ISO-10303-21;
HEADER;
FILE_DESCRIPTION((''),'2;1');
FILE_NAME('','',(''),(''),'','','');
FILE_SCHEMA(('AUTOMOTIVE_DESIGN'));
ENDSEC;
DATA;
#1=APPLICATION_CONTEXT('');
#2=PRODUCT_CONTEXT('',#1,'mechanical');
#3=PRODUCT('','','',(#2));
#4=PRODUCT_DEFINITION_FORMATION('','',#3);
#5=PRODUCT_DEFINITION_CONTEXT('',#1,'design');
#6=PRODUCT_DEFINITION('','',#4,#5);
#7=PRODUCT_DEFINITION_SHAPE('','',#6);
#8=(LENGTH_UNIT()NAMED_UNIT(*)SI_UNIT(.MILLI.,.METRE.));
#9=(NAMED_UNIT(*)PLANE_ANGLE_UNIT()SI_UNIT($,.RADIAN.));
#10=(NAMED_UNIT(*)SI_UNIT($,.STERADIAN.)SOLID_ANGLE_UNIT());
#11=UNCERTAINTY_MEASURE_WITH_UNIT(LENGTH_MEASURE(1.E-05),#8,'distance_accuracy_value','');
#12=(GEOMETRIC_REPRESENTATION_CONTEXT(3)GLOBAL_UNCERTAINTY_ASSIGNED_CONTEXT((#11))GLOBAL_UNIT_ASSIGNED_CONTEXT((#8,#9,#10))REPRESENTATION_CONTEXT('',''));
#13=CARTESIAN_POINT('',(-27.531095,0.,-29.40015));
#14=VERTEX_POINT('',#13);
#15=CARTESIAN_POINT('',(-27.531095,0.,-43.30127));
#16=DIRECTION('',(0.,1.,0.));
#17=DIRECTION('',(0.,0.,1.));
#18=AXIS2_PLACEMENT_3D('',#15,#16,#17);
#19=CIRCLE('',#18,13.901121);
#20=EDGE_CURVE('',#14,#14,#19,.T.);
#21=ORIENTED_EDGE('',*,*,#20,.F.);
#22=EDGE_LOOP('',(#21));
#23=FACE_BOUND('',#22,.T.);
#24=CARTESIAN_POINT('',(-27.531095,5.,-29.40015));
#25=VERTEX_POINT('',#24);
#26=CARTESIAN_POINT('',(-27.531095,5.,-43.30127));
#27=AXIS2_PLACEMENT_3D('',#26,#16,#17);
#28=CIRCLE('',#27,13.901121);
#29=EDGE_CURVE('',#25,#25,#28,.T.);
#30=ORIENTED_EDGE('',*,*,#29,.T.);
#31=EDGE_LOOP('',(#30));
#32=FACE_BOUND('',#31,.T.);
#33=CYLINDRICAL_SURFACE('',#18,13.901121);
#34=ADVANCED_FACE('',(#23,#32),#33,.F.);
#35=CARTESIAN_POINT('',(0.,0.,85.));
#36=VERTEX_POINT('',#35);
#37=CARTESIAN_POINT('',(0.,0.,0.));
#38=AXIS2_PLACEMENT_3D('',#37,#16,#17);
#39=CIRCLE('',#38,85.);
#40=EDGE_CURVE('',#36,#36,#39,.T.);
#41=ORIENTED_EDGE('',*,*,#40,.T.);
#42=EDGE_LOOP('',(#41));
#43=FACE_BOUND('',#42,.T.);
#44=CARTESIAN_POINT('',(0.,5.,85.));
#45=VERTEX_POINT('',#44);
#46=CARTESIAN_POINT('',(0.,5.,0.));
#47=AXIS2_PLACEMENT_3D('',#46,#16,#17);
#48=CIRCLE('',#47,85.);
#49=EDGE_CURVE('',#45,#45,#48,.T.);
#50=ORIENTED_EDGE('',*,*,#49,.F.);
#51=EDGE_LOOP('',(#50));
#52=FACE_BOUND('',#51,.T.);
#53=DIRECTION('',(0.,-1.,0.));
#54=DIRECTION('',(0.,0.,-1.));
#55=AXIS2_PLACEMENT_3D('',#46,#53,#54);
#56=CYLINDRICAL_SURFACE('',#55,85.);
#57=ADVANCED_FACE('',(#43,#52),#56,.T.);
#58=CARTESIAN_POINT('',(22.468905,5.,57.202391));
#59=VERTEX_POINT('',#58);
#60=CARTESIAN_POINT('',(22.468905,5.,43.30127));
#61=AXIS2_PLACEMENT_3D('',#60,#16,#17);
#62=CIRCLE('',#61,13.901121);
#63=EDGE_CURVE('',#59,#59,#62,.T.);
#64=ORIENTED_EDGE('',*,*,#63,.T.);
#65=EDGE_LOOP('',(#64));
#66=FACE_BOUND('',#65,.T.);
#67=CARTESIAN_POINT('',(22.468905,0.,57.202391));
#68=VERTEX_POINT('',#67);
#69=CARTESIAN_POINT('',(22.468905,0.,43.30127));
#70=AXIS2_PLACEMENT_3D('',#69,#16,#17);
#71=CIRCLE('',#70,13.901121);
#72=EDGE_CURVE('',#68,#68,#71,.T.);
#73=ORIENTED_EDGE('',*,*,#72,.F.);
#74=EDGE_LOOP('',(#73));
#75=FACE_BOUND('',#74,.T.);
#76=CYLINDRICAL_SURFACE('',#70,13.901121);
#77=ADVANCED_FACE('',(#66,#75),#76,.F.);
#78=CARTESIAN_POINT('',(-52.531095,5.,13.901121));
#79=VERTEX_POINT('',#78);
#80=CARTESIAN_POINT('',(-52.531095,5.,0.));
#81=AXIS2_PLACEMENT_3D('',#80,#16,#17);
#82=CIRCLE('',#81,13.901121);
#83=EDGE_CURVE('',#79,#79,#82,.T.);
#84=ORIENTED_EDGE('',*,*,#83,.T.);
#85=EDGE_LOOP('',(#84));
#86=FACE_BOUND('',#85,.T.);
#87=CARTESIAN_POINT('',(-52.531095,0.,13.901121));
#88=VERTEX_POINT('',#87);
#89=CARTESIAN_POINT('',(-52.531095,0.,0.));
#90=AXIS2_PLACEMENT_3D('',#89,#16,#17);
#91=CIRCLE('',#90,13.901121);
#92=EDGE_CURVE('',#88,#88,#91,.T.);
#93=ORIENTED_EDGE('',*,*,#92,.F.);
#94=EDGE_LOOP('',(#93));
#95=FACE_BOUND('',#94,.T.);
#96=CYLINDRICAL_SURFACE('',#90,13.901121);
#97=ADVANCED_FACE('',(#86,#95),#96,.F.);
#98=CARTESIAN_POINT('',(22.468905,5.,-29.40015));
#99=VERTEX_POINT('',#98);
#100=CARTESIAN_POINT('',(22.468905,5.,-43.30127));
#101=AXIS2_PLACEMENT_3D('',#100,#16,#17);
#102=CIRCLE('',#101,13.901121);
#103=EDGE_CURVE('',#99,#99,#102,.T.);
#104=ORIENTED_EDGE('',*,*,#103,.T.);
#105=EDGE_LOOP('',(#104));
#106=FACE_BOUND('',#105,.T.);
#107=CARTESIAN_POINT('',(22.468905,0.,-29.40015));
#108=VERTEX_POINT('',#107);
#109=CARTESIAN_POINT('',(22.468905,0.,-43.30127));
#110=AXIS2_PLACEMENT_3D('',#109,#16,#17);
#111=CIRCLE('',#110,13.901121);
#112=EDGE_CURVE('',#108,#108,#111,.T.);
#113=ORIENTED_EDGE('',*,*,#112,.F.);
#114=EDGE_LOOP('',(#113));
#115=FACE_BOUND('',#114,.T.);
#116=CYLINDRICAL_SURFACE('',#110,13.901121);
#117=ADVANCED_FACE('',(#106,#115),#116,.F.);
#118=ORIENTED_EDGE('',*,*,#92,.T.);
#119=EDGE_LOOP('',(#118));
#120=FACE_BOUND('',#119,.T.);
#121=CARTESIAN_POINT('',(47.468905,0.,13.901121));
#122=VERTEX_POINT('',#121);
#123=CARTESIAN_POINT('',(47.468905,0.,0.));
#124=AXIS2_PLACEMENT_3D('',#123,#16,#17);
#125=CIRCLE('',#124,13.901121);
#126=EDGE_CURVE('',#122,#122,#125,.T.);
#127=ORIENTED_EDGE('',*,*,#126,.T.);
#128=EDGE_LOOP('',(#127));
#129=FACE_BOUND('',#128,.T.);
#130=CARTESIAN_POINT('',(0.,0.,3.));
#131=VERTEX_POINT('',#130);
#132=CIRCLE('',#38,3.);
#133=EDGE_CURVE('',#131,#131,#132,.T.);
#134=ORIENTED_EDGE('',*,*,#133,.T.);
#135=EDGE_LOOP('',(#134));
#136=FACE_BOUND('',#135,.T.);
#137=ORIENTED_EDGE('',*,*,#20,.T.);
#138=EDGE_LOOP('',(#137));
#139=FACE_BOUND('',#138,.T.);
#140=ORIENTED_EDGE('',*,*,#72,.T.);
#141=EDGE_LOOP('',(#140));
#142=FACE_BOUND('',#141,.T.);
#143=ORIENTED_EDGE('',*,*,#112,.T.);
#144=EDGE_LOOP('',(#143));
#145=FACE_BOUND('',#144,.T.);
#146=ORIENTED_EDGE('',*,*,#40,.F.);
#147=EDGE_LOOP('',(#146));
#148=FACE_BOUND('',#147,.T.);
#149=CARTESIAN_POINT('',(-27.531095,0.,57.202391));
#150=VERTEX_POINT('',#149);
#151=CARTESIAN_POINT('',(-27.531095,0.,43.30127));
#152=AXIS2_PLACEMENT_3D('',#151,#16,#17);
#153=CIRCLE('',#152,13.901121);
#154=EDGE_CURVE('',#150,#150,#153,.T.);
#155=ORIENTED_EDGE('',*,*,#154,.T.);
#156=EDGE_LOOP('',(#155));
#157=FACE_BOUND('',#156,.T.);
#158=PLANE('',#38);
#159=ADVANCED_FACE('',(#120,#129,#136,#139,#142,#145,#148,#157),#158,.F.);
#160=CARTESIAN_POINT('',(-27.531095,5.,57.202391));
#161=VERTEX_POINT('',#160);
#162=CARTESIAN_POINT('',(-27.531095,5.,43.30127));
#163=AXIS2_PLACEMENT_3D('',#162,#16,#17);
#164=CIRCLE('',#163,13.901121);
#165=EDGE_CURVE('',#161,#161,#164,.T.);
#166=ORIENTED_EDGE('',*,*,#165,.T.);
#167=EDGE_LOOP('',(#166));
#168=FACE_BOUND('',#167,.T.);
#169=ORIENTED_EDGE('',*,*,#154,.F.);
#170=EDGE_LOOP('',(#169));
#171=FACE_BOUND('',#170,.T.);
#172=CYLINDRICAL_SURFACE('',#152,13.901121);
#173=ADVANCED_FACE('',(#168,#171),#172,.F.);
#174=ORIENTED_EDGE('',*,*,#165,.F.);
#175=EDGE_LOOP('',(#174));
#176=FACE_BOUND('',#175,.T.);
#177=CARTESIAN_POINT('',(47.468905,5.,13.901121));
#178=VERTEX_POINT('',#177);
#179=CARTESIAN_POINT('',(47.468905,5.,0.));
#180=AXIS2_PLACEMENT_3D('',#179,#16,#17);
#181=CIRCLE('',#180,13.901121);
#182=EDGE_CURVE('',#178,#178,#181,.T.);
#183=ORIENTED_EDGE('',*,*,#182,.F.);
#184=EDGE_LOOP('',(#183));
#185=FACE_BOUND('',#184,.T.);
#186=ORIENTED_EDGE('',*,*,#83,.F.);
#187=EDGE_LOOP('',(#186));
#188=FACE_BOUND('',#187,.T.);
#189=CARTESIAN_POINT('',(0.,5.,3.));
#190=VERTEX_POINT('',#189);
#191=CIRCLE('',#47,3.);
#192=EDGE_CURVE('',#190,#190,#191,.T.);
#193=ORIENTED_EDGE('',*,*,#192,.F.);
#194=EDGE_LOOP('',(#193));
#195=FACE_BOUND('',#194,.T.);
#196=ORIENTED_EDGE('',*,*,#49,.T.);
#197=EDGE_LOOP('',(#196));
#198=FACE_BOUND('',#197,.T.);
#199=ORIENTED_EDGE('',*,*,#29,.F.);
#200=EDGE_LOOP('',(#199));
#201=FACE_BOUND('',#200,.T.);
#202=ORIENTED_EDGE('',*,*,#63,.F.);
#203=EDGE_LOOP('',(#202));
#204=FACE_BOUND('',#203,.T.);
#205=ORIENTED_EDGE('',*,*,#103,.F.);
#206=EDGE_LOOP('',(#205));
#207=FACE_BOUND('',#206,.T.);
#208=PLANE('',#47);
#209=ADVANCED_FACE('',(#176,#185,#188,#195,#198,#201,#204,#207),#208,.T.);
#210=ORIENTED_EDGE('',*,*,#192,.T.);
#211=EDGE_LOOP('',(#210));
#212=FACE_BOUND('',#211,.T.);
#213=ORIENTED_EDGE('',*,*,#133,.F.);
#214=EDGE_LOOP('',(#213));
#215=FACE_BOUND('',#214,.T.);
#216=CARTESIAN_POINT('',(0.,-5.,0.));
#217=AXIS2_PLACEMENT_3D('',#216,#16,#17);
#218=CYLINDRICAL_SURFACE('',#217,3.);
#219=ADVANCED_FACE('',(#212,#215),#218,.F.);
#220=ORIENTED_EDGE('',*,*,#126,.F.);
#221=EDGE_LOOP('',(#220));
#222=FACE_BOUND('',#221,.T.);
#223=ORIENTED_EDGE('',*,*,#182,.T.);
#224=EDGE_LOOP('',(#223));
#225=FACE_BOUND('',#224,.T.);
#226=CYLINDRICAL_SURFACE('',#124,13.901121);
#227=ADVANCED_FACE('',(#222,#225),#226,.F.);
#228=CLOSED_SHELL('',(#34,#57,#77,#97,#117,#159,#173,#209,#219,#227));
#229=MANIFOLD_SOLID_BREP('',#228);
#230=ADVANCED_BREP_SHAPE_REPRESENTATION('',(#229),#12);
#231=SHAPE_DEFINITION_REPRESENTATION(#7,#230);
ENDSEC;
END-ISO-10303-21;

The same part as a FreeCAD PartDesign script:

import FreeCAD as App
import Part
import Sketcher
from FreeCAD import Vector
Q = App.Units.Quantity

doc = App.newDocument("Part")
body = doc.addObject("PartDesign::Body", "Body")

# Sketch on XZ plane
sketch1 = body.newObject("Sketcher::SketchObject", "Sketch")
sketch1.AttachmentSupport = (doc.getObject("XZ_Plane"), [""])
sketch1.MapMode = "FlatFace"
sketch1.addGeometry(Part.Circle(Vector(0, 0, 0), Vector(0, 0, 1), 85), False)
sketch1.addConstraint(Sketcher.Constraint("Coincident", 0, 3, -1, 1))
sketch1.addConstraint(Sketcher.Constraint("Diameter", 0, Q("170 mm")))
pad1 = body.newObject("PartDesign::Pad", "Pad")
pad1.Profile = sketch1
pad1.Length = 5
pad1.Reversed = True

# Sketch on XZ plane
sketch2 = body.newObject("Sketcher::SketchObject", "Sketch001")
sketch2.AttachmentSupport = (doc.getObject("XZ_Plane"), [""])
sketch2.MapMode = "FlatFace"
sketch2.AttachmentOffset = App.Placement(Vector(0, 0, -5), App.Rotation())
sketch2.addGeometry(Part.Circle(Vector(47, 0, 0), Vector(0, 0, 1), 14), False)
sketch2.addGeometry(Part.Circle(Vector(22, 43, 0), Vector(0, 0, 1), 14), False)
sketch2.addGeometry(Part.Circle(Vector(-28, 43, 0), Vector(0, 0, 1), 14), False)
sketch2.addGeometry(Part.Circle(Vector(-53, 0, 0), Vector(0, 0, 1), 14), False)
sketch2.addGeometry(Part.Circle(Vector(-28, -43, 0), Vector(0, 0, 1), 14), False)
sketch2.addGeometry(Part.Circle(Vector(22, -43, 0), Vector(0, 0, 1), 14), False)
sketch2.addConstraint(Sketcher.Constraint("Equal", 0, 1))
sketch2.addConstraint(Sketcher.Constraint("Equal", 1, 2))
sketch2.addConstraint(Sketcher.Constraint("Equal", 2, 3))
sketch2.addConstraint(Sketcher.Constraint("Equal", 3, 4))
sketch2.addConstraint(Sketcher.Constraint("Equal", 4, 5))
sketch2.addConstraint(Sketcher.Constraint("Symmetric", 2, 3, 4, 3, -1))
sketch2.addConstraint(Sketcher.Constraint("Symmetric", 1, 3, 5, 3, -1))
sketch2.addConstraint(Sketcher.Constraint("PointOnObject", 0, 3, -1))
sketch2.addConstraint(Sketcher.Constraint("PointOnObject", 3, 3, -1))
sketch2.addConstraint(Sketcher.Constraint("Horizontal", 1, 3, 2, 3))
sketch2.addConstraint(Sketcher.Constraint("DistanceX", 1, 3, 0, 3, Q("25 mm")))
sketch2.addConstraint(Sketcher.Constraint("DistanceX", 2, 3, 1, 3, Q("50 mm")))
sketch2.addConstraint(Sketcher.Constraint("DistanceX", 3, 3, 2, 3, Q("25 mm")))
sketch2.addConstraint(Sketcher.Constraint("Diameter", 0, Q("27.802241 mm")))
sketch2.addConstraint(Sketcher.Constraint("DistanceY", -1, 1, 1, 3, Q("43.30127 mm")))
sketch2.addConstraint(Sketcher.Constraint("DistanceX", -1, 1, 0, 3, Q("47.468905 mm")))
pocket1 = body.newObject("PartDesign::Pocket", "Pocket")
pocket1.Profile = sketch2
pocket1.Type = "ThroughAll"
pocket1.Reversed = True

# Sketch on XZ plane
sketch3 = body.newObject("Sketcher::SketchObject", "Sketch002")
sketch3.AttachmentSupport = (doc.getObject("XZ_Plane"), [""])
sketch3.MapMode = "FlatFace"
sketch3.AttachmentOffset = App.Placement(Vector(0, 0, -5), App.Rotation())
sketch3.addGeometry(Part.Circle(Vector(0, 0, 0), Vector(0, 0, 1), 3), False)
sketch3.addConstraint(Sketcher.Constraint("Coincident", 0, 3, -1, 1))
sketch3.addConstraint(Sketcher.Constraint("Diameter", 0, Q("6 mm")))
pocket2 = body.newObject("PartDesign::Pocket", "Pocket001")
pocket2.Profile = sketch3
pocket2.Length = 10
pocket2.Reversed = True

doc.recompute()
